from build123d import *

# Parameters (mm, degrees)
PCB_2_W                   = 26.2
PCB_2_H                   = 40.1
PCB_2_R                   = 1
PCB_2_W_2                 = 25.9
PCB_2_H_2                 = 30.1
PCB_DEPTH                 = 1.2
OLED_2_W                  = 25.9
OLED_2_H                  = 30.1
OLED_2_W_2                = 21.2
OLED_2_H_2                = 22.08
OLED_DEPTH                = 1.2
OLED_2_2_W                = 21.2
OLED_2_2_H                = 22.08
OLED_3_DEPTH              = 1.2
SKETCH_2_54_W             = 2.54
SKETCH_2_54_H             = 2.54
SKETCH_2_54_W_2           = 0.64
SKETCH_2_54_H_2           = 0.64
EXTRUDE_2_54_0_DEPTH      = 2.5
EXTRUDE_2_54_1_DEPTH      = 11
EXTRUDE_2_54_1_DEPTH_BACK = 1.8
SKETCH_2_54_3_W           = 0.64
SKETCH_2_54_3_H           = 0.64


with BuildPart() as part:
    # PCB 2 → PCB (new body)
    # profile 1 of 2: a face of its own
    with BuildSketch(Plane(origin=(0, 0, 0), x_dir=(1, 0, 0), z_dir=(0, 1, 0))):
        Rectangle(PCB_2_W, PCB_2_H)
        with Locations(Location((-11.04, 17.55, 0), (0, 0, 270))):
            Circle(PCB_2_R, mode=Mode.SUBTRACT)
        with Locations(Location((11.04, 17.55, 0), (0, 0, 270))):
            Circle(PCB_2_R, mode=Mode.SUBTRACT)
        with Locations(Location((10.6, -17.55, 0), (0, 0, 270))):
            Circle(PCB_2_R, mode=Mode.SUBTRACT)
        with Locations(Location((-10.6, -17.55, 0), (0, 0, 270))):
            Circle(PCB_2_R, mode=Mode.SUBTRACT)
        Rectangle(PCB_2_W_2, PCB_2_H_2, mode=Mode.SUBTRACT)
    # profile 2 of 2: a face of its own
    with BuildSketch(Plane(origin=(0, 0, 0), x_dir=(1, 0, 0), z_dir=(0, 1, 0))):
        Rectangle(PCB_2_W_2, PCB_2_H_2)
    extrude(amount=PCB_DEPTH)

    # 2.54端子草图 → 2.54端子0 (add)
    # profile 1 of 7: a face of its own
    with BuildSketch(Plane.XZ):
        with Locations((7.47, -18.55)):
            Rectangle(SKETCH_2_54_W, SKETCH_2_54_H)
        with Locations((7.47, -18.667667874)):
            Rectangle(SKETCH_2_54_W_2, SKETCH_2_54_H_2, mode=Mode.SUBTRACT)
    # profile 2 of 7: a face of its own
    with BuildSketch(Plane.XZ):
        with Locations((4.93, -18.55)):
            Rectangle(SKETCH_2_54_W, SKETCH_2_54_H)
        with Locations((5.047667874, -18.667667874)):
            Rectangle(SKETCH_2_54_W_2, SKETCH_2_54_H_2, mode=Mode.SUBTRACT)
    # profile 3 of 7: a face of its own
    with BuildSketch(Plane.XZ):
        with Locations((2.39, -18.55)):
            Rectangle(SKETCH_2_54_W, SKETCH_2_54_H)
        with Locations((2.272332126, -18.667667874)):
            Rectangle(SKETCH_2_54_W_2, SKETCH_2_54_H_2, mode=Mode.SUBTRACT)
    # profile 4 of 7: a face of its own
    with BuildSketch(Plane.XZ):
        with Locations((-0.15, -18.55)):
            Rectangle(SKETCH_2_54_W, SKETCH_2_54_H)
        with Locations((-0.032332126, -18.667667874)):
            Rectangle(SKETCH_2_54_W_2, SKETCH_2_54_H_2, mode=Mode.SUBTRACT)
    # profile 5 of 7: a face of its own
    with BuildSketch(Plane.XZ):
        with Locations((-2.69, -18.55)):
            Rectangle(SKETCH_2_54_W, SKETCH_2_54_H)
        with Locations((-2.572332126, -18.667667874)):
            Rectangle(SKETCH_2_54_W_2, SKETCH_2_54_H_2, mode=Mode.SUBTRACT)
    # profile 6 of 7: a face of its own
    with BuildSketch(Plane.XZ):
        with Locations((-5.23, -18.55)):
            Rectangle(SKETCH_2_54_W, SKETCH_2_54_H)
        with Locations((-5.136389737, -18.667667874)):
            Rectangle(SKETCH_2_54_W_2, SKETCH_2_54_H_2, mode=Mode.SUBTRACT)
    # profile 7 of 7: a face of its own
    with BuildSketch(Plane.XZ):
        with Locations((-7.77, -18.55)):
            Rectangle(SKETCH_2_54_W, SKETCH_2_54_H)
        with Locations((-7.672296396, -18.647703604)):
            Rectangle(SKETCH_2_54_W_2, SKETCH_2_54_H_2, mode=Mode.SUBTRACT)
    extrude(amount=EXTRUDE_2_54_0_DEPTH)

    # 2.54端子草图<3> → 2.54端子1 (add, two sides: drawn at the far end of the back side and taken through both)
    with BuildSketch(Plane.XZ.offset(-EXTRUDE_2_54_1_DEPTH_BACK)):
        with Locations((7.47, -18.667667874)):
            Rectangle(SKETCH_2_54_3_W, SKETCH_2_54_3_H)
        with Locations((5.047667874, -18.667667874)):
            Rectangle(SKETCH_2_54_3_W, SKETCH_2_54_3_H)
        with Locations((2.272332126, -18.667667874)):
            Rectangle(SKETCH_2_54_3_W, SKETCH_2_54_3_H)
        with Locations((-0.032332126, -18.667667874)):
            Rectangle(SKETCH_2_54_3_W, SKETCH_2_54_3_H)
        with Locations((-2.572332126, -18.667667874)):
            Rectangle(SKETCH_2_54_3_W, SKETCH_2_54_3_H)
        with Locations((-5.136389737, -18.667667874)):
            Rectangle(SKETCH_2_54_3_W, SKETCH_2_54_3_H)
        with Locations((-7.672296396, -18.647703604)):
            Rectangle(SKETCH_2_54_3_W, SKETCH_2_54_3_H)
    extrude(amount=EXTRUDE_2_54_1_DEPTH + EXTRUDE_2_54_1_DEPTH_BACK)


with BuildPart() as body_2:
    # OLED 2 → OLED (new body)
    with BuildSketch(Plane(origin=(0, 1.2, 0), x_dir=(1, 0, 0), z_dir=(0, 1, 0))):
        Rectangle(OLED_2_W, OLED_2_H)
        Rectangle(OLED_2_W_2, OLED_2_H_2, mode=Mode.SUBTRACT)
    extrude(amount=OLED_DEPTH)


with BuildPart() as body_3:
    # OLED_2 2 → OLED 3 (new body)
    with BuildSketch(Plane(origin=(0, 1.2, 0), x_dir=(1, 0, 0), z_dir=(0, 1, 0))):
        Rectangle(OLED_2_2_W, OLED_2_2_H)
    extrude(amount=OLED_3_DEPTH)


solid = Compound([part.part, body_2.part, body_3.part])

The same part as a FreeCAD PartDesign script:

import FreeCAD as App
import Part
import Sketcher

V = App.Vector


def add_polygon(sketch, points):
    """Adds a closed chain of lines whose ends are joined by coincident constraints."""
    first, n = sketch.GeometryCount, len(points)
    for a, b in zip(points, points[1:] + points[:1]):
        sketch.addGeometry(Part.LineSegment(App.Vector(*a, 0), App.Vector(*b, 0)), False)
    for i in range(n):
        sketch.addConstraint(Sketcher.Constraint("Coincident", first + i, 2, first + (i + 1) % n, 1))

doc = App.newDocument("Part")
body = doc.addObject("PartDesign::Body", "Body")

sketch1 = body.newObject("Sketcher::SketchObject", "Sketch")
sketch1.AttachmentSupport = (doc.getObject("XZ_Plane"), [""])
sketch1.MapMode = "FlatFace"
add_polygon(sketch1, [(-13.1, -20.1), (-13.1, 20.1), (13.1, 20.1), (13.1, -20.1)])
sketch1.addGeometry(Part.Circle(V(-10.6, 17.6, 0), V(0, 0, 1), 1), False)
sketch1.addGeometry(Part.Circle(V(10.6, 17.6, 0), V(0, 0, 1), 1), False)
sketch1.addGeometry(Part.Circle(V(-11, -17.6, 0), V(0, 0, 1), 1), False)
sketch1.addGeometry(Part.Circle(V(11, -17.6, 0), V(0, 0, 1), 1), False)
sketch1.addConstraint([
    Sketcher.Constraint("Vertical", 0),
    Sketcher.Constraint("Horizontal", 1),
    Sketcher.Constraint("Vertical", 2),
    Sketcher.Constraint("Horizontal", 3),
    Sketcher.Constraint("Equal", 4, 5),
    Sketcher.Constraint("Equal", 5, 6),
    Sketcher.Constraint("Equal", 6, 7),
    Sketcher.Constraint("Symmetric", 0, 2, 2, 2, -1, 1),
    Sketcher.Constraint("Symmetric", 4, 3, 5, 3, -2),
    Sketcher.Constraint("Symmetric", 6, 3, 7, 3, -2),
    Sketcher.Constraint("Diameter", 4, 2.0),
    Sketcher.Constraint("DistanceX", 1, 1, 1, 2, 26.2),
    Sketcher.Constraint("DistanceY", 0, 1, 0, 2, 40.1),
    Sketcher.Constraint("DistanceX", 4, 3, -1, 1, 10.6),
    Sketcher.Constraint("DistanceY", 6, 3, 4, 3, 35.1),
    Sketcher.Constraint("DistanceY", 4, 3, 0, 2, 2.5),
    Sketcher.Constraint("DistanceX", 6, 3, -1, 1, 11.04),
])
pad1 = body.newObject("PartDesign::Pad", "Pad")
pad1.Profile = sketch1
pad1.Length = 1.2
pad1.Reversed = True

sketch2 = body.newObject("Sketcher::SketchObject", "Sketch001")
sketch2.AttachmentSupport = (doc.getObject("XZ_Plane"), [""])
sketch2.MapMode = "FlatFace"
add_polygon(sketch2, [(8.7, -19.8), (8.7, -17.3), (-9, -17.3), (-9, -19.8)])
add_polygon(sketch2, [(7.8, -19), (7.2, -19), (7.2, -18.3), (7.8, -18.3)])
add_polygon(sketch2, [(4.7, -19), (4.7, -18.3), (5.4, -18.3), (5.4, -19)])
add_polygon(sketch2, [(2, -19), (2, -18.3), (2.6, -18.3), (2.6, -19)])
add_polygon(sketch2, [(-0.4, -19), (-0.4, -18.3), (0.3, -18.3), (0.3, -19)])
add_polygon(sketch2, [(-2.9, -19), (-2.9, -18.3), (-2.3, -18.3), (-2.3, -19)])
add_polygon(sketch2, [(-5.5, -19), (-5.5, -18.3), (-4.8, -18.3), (-4.8, -19)])
add_polygon(sketch2, [(-8, -19), (-8, -18.3), (-7.4, -18.3), (-7.4, -19)])
sketch2.addConstraint([
    Sketcher.Constraint("Vertical", 0),
    Sketcher.Constraint("Horizontal", 1),
    Sketcher.Constraint("Vertical", 2),
    Sketcher.Constraint("Horizontal", 3),
    Sketcher.Constraint("Horizontal", 4),
    Sketcher.Constraint("Vertical", 5),
    Sketcher.Constraint("Horizontal", 6),
    Sketcher.Constraint("Vertical", 7),
    Sketcher.Constraint("Vertical", 8),
    Sketcher.Constraint("Horizontal", 9),
    Sketcher.Constraint("Vertical", 10),
    Sketcher.Constraint("Horizontal", 11),
    Sketcher.Constraint("Vertical", 12),
    Sketcher.Constraint("Horizontal", 13),
    Sketcher.Constraint("Vertical", 14),
    Sketcher.Constraint("Horizontal", 15),
    Sketcher.Constraint("Vertical", 16),
    Sketcher.Constraint("Horizontal", 17),
    Sketcher.Constraint("Vertical", 18),
    Sketcher.Constraint("Horizontal", 19),
    Sketcher.Constraint("Vertical", 20),
    Sketcher.Constraint("Horizontal", 21),
    Sketcher.Constraint("Vertical", 22),
    Sketcher.Constraint("Horizontal", 23),
    Sketcher.Constraint("Vertical", 24),
    Sketcher.Constraint("Horizontal", 25),
    Sketcher.Constraint("Vertical", 26),
    Sketcher.Constraint("Horizontal", 27),
    Sketcher.Constraint("Vertical", 28),
    Sketcher.Constraint("Horizontal", 29),
    Sketcher.Constraint("Vertical", 30),
    Sketcher.Constraint("Horizontal", 31),
    Sketcher.Constraint("Horizontal", 6, 2, 8, 2),
    Sketcher.Constraint("Horizontal", 7, 2, 10, 2),
    Sketcher.Constraint("Horizontal", 9, 2, 12, 2),
    Sketcher.Constraint("Horizontal", 11, 2, 14, 2),
    Sketcher.Constraint("Horizontal", 13, 2, 16, 2),
    Sketcher.Constraint("Horizontal", 15, 2, 18, 2),
    Sketcher.Constraint("Horizontal", 17, 2, 20, 2),
    Sketcher.Constraint("Horizontal", 19, 2, 22, 2),
    Sketcher.Constraint("Horizontal", 21, 2, 24, 2),
    Sketcher.Constraint("Horizontal", 23, 2, 26, 2),
    Sketcher.Constraint("Equal", 6, 9),
    Sketcher.Constraint("Equal", 11, 13),
    Sketcher.Constraint("Equal", 15, 17),
    Sketcher.Constraint("Equal", 19, 21),
    Sketcher.Constraint("Equal", 23, 25),
    Sketcher.Constraint("Equal", 27, 29),
    Sketcher.Constraint("Equal", 31, 5),
    Sketcher.Constraint("Equal", 26, 28),
    Sketcher.Constraint("DistanceX", 1, 2, 1, 1, 17.78),
    Sketcher.Constraint("DistanceX", 4, 2, 4, 1, 0.64),
    Sketcher.Constraint("DistanceY", 0, 1, 0, 2, 2.54),
    Sketcher.Constraint("DistanceX", 21, 2, 16, 2, 1.9),
    Sketcher.Constraint("DistanceX", -1, 1, 0, 2, 8.74),
    Sketcher.Constraint("DistanceY", 0, 2, -1, 1, 17.28),
    Sketcher.Constraint("DistanceX", -1, 1, 4, 2, 7.15),
    Sketcher.Constraint("DistanceX", 16, 2, 8, 2, 5.08),
    Sketcher.Constraint("DistanceX", 24, 2, -1, 1, 5.45639),
    Sketcher.Constraint("DistanceY", 4, 2, -1, 1, 18.987668),
    Sketcher.Constraint("DistanceX", -1, 1, 8, 2, 4.727668),
    Sketcher.Constraint("DistanceX", -1, 1, 12, 2, 1.952332),
    Sketcher.Constraint("DistanceX", 28, 2, -1, 1, 7.992296),
    Sketcher.Constraint("DistanceY", 28, 2, -1, 1, 18.327704),
])
pad2 = body.newObject("PartDesign::Pad", "Pad001")
pad2.Profile = sketch2
pad2.Length = 2.5

sketch3 = body.newObject("Sketcher::SketchObject", "Sketch002")
sketch3.AttachmentSupport = (doc.getObject("XZ_Plane"), [""])
sketch3.MapMode = "FlatFace"
add_polygon(sketch3, [(7.2, -18.3), (7.2, -19), (7.8, -19), (7.8, -18.3)])
add_polygon(sketch3, [(4.7, -18.3), (4.7, -19), (5.4, -19), (5.4, -18.3)])
add_polygon(sketch3, [(2, -18.3), (2, -19), (2.6, -19), (2.6, -18.3)])
add_polygon(sketch3, [(-0.4, -18.3), (-0.4, -19), (0.3, -19), (0.3, -18.3)])
add_polygon(sketch3, [(-2.9, -18.3), (-2.9, -19), (-2.3, -19), (-2.3, -18.3)])
add_polygon(sketch3, [(-5.5, -18.3), (-5.5, -19), (-4.8, -19), (-4.8, -18.3)])
add_polygon(sketch3, [(-8, -18.3), (-8, -19), (-7.4, -19), (-7.4, -18.3)])
sketch3.addConstraint([
    Sketcher.Constraint("Vertical", 0),
    Sketcher.Constraint("Horizontal", 1),
    Sketcher.Constraint("Vertical", 2),
    Sketcher.Constraint("Horizontal", 3),
    Sketcher.Constraint("Vertical", 4),
    Sketcher.Constraint("Horizontal", 5),
    Sketcher.Constraint("Vertical", 6),
    Sketcher.Constraint("Horizontal", 7),
    Sketcher.Constraint("Vertical", 8),
    Sketcher.Constraint("Horizontal", 9),
    Sketcher.Constraint("Vertical", 10),
    Sketcher.Constraint("Horizontal", 11),
    Sketcher.Constraint("Vertical", 12),
    Sketcher.Constraint("Horizontal", 13),
    Sketcher.Constraint("Vertical", 14),
    Sketcher.Constraint("Horizontal", 15),
    Sketcher.Constraint("Vertical", 16),
    Sketcher.Constraint("Horizontal", 17),
    Sketcher.Constraint("Vertical", 18),
    Sketcher.Constraint("Horizontal", 19),
    Sketcher.Constraint("Vertical", 20),
    Sketcher.Constraint("Horizontal", 21),
    Sketcher.Constraint("Vertical", 22),
    Sketcher.Constraint("Horizontal", 23),
    Sketcher.Constraint("Vertical", 24),
    Sketcher.Constraint("Horizontal", 25),
    Sketcher.Constraint("Vertical", 26),
    Sketcher.Constraint("Horizontal", 27),
    Sketcher.Constraint("Horizontal", 1, 2, 4, 2),
    Sketcher.Constraint("Horizontal", 3, 2, 6, 2),
    Sketcher.Constraint("Horizontal", 5, 2, 8, 2),
    Sketcher.Constraint("Horizontal", 7, 2, 10, 2),
    Sketcher.Constraint("Horizontal", 9, 2, 12, 2),
    Sketcher.Constraint("Horizontal", 11, 2, 14, 2),
    Sketcher.Constraint("Horizontal", 13, 2, 16, 2),
    Sketcher.Constraint("Horizontal", 15, 2, 18, 2),
    Sketcher.Constraint("Horizontal", 17, 2, 20, 2),
    Sketcher.Constraint("Horizontal", 19, 2, 22, 2),
    Sketcher.Constraint("Equal", 3, 5),
    Sketcher.Constraint("Equal", 7, 9),
    Sketcher.Constraint("Equal", 11, 13),
    Sketcher.Constraint("Equal", 15, 17),
    Sketcher.Constraint("Equal", 19, 21),
    Sketcher.Constraint("Equal", 23, 25),
    Sketcher.Constraint("Equal", 27, 0),
    Sketcher.Constraint("Equal", 22, 24),
    Sketcher.Constraint("DistanceX", 1, 1, 1, 2, 0.64),
    Sketcher.Constraint("DistanceX", 17, 2, 12, 2, 1.9),
    Sketcher.Constraint("DistanceX", -1, 1, 0, 2, 7.15),
    Sketcher.Constraint("DistanceX", 12, 2, 4, 2, 5.08),
    Sketcher.Constraint("DistanceX", 20, 2, -1, 1, 5.45639),
    Sketcher.Constraint("DistanceY", 0, 2, -1, 1, 18.987668),
    Sketcher.Constraint("DistanceX", -1, 1, 4, 2, 4.727668),
    Sketcher.Constraint("DistanceX", -1, 1, 8, 2, 1.952332),
    Sketcher.Constraint("DistanceX", 24, 2, -1, 1, 7.992296),
    Sketcher.Constraint("DistanceY", 24, 2, -1, 1, 18.967704),
])
pad3 = body.newObject("PartDesign::Pad", "Pad002")
pad3.Profile = sketch3
pad3.Type = "TwoLengths"
pad3.Length = 11
pad3.Length2 = 1.8
body2 = doc.addObject("PartDesign::Body", "Body001")

sketch4 = body2.newObject("Sketcher::SketchObject", "Sketch003")
sketch4.AttachmentSupport = (doc.getObject("XZ_Plane001"), [""])
sketch4.MapMode = "FlatFace"
sketch4.AttachmentOffset = App.Placement(V(0, 0, -1.2), App.Rotation())
add_polygon(sketch4, [(-13, -15), (-13, 15), (13, 15), (13, -15)])
add_polygon(sketch4, [(11, 11), (-11, 11), (-11, -11), (11, -11)])
sketch4.addConstraint([
    Sketcher.Constraint("Vertical", 0),
    Sketcher.Constraint("Horizontal", 1),
    Sketcher.Constraint("Vertical", 2),
    Sketcher.Constraint("Horizontal", 3),
    Sketcher.Constraint("Horizontal", 4),
    Sketcher.Constraint("Vertical", 5),
    Sketcher.Constraint("Horizontal", 6),
    Sketcher.Constraint("Vertical", 7),
    Sketcher.Constraint("Symmetric", 0, 2, 2, 2, -1, 1),
    Sketcher.Constraint("Symmetric", 4, 2, 6, 2, -1, 1),
    Sketcher.Constraint("DistanceX", 1, 1, 1, 2, 25.9),
    Sketcher.Constraint("DistanceX", 4, 2, 4, 1, 21.2),
    Sketcher.Constraint("DistanceY", 0, 1, 0, 2, 30.1),
    Sketcher.Constraint("DistanceY", 5, 2, 5, 1, 22.08),
])
pad4 = body2.newObject("PartDesign::Pad", "Pad003")
pad4.Profile = sketch4
pad4.Length = 1.2
pad4.Reversed = True
body3 = doc.addObject("PartDesign::Body", "Body002")

sketch5 = body3.newObject("Sketcher::SketchObject", "Sketch004")
sketch5.AttachmentSupport = (doc.getObject("XZ_Plane002"), [""])
sketch5.MapMode = "FlatFace"
sketch5.AttachmentOffset = App.Placement(V(0, 0, -1.2), App.Rotation())
add_polygon(sketch5, [(-11, -11), (-11, 11), (11, 11), (11, -11)])
sketch5.addConstraint([
    Sketcher.Constraint("Vertical", 0),
    Sketcher.Constraint("Horizontal", 1),
    Sketcher.Constraint("Vertical", 2),
    Sketcher.Constraint("Horizontal", 3),
    Sketcher.Constraint("Symmetric", 0, 2, 2, 2, -1, 1),
    Sketcher.Constraint("DistanceX", 1, 1, 1, 2, 21.2),
    Sketcher.Constraint("DistanceY", 0, 1, 0, 2, 22.08),
])
pad5 = body3.newObject("PartDesign::Pad", "Pad004")
pad5.Profile = sketch5
pad5.Length = 1.2
pad5.Reversed = True

doc.recompute()
